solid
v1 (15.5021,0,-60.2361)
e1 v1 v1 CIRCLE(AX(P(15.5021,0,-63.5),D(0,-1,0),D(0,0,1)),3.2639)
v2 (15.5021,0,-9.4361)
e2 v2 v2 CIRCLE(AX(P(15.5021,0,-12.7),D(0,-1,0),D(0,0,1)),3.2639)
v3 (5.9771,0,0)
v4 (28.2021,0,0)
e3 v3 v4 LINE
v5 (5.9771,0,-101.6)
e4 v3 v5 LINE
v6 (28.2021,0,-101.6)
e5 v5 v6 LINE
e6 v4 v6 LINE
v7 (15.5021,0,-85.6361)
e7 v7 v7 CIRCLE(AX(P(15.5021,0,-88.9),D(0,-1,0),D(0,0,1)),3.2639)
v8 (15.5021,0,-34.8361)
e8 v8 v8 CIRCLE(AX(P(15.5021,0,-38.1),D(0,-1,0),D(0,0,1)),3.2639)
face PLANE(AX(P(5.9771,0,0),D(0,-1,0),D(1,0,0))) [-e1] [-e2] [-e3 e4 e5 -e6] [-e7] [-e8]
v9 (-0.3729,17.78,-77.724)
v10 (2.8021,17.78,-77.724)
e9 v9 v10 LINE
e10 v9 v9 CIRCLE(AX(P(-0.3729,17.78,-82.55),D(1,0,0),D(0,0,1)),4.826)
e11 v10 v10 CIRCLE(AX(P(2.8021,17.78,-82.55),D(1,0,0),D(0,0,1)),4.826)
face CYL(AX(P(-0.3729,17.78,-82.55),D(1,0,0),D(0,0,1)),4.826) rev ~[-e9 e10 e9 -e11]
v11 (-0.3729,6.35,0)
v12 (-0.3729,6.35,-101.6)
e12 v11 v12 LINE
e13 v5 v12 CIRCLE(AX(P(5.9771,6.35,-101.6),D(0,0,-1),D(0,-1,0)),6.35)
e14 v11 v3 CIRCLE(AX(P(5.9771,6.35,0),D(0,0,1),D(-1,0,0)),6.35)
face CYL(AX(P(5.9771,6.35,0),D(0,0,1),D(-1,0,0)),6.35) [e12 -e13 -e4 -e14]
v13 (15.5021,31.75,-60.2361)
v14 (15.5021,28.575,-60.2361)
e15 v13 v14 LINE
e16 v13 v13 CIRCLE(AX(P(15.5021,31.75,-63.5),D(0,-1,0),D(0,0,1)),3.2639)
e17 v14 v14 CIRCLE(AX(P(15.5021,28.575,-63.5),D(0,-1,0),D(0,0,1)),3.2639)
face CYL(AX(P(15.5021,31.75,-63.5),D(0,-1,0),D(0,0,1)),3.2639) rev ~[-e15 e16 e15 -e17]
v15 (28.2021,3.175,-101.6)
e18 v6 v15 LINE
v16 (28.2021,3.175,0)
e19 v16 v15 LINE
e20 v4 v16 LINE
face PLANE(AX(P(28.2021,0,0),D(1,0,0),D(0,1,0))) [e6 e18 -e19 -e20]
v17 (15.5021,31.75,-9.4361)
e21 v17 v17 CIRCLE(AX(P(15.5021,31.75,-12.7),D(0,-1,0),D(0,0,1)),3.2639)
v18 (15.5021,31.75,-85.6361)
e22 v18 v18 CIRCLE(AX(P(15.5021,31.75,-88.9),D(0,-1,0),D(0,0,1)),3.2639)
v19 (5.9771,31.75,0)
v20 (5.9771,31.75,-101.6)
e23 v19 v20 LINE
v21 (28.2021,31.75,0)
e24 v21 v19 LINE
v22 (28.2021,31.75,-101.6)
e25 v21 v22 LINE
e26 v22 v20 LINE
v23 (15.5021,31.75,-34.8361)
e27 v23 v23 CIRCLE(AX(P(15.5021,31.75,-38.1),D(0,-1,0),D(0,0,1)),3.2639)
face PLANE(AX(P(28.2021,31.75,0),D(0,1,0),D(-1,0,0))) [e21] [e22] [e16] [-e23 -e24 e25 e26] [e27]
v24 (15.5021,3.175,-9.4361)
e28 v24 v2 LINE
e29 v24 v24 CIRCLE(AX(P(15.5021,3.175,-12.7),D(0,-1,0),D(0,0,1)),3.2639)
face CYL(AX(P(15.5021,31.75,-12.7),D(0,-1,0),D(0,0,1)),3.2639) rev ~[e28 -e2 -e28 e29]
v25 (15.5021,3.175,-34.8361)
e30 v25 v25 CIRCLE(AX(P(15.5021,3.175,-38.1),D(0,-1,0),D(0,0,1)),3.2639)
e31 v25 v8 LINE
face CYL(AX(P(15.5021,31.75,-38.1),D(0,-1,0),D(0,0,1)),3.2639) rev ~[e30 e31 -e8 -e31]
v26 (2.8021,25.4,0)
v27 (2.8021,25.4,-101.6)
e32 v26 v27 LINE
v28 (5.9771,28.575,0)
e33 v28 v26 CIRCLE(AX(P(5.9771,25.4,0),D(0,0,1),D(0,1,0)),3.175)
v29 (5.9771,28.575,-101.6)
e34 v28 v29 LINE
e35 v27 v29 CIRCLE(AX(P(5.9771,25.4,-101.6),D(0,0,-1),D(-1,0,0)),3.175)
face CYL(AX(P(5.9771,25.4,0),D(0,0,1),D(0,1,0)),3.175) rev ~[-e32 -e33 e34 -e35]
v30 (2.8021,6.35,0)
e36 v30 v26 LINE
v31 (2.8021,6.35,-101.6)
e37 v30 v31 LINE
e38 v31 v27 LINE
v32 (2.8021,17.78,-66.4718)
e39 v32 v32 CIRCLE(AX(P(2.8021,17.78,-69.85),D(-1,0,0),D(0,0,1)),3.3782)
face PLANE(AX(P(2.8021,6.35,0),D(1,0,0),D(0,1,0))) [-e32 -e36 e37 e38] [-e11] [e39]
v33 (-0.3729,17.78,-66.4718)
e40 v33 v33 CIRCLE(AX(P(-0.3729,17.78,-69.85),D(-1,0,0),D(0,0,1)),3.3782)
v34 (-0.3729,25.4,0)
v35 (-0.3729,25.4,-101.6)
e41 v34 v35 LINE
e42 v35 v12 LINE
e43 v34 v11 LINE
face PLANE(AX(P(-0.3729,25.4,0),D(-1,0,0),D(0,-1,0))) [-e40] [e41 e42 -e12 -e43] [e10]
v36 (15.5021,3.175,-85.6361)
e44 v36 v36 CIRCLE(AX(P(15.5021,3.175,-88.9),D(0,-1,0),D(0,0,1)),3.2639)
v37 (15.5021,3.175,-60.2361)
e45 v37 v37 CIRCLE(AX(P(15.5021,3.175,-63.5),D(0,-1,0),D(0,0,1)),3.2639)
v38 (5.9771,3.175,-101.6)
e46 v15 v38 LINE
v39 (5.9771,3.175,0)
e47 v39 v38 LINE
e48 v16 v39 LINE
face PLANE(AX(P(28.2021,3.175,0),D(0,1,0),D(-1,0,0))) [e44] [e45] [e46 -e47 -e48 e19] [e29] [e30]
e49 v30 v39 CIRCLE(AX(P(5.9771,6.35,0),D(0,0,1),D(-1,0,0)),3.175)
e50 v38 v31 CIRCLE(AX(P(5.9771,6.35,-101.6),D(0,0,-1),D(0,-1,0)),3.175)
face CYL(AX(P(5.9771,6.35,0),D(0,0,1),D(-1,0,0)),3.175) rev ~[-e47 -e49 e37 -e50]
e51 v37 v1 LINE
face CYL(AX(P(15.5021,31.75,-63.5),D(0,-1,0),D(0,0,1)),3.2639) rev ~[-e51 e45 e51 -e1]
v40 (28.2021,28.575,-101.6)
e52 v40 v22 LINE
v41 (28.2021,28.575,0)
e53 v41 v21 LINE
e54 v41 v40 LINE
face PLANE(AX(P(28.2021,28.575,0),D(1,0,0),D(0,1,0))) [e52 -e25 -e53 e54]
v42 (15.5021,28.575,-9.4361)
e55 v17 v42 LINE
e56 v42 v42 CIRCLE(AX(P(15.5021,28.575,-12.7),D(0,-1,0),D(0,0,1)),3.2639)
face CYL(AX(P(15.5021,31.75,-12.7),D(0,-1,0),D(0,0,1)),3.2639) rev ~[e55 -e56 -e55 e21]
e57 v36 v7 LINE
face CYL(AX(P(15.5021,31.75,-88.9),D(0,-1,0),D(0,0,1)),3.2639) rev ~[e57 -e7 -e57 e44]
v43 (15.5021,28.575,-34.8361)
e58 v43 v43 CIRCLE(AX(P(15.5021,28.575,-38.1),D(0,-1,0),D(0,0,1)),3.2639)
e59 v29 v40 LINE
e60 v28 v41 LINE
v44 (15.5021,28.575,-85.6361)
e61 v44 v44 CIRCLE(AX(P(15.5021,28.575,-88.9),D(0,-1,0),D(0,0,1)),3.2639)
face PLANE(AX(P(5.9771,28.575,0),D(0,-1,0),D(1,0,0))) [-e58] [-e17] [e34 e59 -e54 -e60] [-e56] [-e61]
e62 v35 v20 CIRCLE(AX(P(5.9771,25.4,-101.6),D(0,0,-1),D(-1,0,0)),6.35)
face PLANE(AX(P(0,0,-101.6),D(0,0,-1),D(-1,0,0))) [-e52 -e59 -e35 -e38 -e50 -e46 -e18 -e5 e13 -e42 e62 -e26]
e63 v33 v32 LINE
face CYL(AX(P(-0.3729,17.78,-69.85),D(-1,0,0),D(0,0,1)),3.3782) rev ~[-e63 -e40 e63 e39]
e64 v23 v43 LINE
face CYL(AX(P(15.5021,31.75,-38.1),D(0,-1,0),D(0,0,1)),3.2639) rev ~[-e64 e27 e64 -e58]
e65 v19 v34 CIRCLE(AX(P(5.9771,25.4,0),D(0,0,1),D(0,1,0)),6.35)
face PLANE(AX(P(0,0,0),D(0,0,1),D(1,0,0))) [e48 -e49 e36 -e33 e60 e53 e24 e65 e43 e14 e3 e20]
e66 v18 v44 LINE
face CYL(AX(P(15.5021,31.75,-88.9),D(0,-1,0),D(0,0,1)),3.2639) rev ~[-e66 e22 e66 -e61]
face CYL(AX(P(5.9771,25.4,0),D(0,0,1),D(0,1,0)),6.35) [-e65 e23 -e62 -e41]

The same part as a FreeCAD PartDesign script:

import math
import FreeCAD as App
import Part
import Sketcher
from FreeCAD import Vector
Q = App.Units.Quantity

doc = App.newDocument("Part")
body = doc.addObject("PartDesign::Body", "Body")

# Sketch on XY plane
sketch1 = doc.addObject("Sketcher::SketchObject", "Sketch")
body.addObject(sketch1)
sketch1.AttachmentSupport = (doc.XY_Plane, [""])
sketch1.MapMode = "FlatFace"
sketch1.addGeometry([
    Part.ArcOfCircle(Part.Circle(Vector(5.9771, 6.35, 0), Vector(0, 0, 1), 6.35), math.radians(180), math.radians(270)),  # 0
    Part.LineSegment(Vector(5.9771, 0, 0), Vector(28.2021, 0, 0)),  # 1
    Part.LineSegment(Vector(28.2021, 0, 0), Vector(28.2021, 3.175, 0)),  # 2
    Part.LineSegment(Vector(28.2021, 3.175, 0), Vector(5.9771, 3.175, 0)),  # 3
    Part.ArcOfCircle(Part.Circle(Vector(5.9771, 6.35, 0), Vector(0, 0, 1), 3.175), math.radians(180), math.radians(270)),  # 4
    Part.LineSegment(Vector(2.8021, 6.35, 0), Vector(2.8021, 25.4, 0)),  # 5
    Part.ArcOfCircle(Part.Circle(Vector(5.9771, 25.4, 0), Vector(0, 0, 1), 3.175), math.radians(90), math.radians(180)),  # 6
    Part.LineSegment(Vector(5.9771, 28.575, 0), Vector(28.2021, 28.575, 0)),  # 7
    Part.LineSegment(Vector(28.2021, 28.575, 0), Vector(28.2021, 31.75, 0)),  # 8
    Part.LineSegment(Vector(28.2021, 31.75, 0), Vector(5.9771, 31.75, 0)),  # 9
    Part.ArcOfCircle(Part.Circle(Vector(5.9771, 25.4, 0), Vector(0, 0, 1), 6.35), math.radians(90), math.radians(180)),  # 10
    Part.LineSegment(Vector(-0.3729, 25.4, 0), Vector(-0.3729, 6.35, 0)),  # 11
], False)
sketch1.addConstraint([
    Sketcher.Constraint("Tangent", 0, 2, 1, 1),
    Sketcher.Constraint("Coincident", 1, 2, 2, 1),
    Sketcher.Constraint("Coincident", 2, 2, 3, 1),
    Sketcher.Constraint("Tangent", 3, 2, 4, 2),
    Sketcher.Constraint("Tangent", 4, 1, 5, 1),
    Sketcher.Constraint("Tangent", 5, 2, 6, 2),
    Sketcher.Constraint("Tangent", 6, 1, 7, 1),
    Sketcher.Constraint("Coincident", 7, 2, 8, 1),
    Sketcher.Constraint("Coincident", 8, 2, 9, 1),
    Sketcher.Constraint("Tangent", 9, 2, 10, 1),
    Sketcher.Constraint("Tangent", 10, 2, 11, 1),
    Sketcher.Constraint("Tangent", 11, 2, 0, 1),
    Sketcher.Constraint("Horizontal", 1),
    Sketcher.Constraint("Vertical", 2),
    Sketcher.Constraint("Horizontal", 3),
    Sketcher.Constraint("Vertical", 5),
    Sketcher.Constraint("Horizontal", 7),
    Sketcher.Constraint("Vertical", 8),
    Sketcher.Constraint("Horizontal", 9),
    Sketcher.Constraint("Vertical", 11),
    Sketcher.Constraint("Coincident", 4, 3, 0, 3),
    Sketcher.Constraint("Coincident", 10, 3, 6, 3),
    Sketcher.Constraint("Equal", 4, 6),
    Sketcher.Constraint("PointOnObject", 0, 2, -1),
    Sketcher.Constraint("Vertical", 2, 2, 7, 2),
    Sketcher.Constraint("Radius", 0, Q("0.25 in")),
    Sketcher.Constraint("DistanceY", -1, 1, 6, 3, Q("1 in")),
    Sketcher.Constraint("Radius", 4, Q("0.125 in")),
    Sketcher.Constraint("DistanceX", 5, 2, 7, 2, Q("1 in")),
    Sketcher.Constraint("DistanceX", -1, 1, 0, 3, 5.977),
])
pad1 = doc.addObject("PartDesign::Pad", "Pad")
body.addObject(pad1)
pad1.Profile = sketch1
pad1.Length = Q("35 in")
pad1.Reversed = True

# Sketch on YZ plane
sketch2 = doc.addObject("Sketcher::SketchObject", "Sketch001")
body.addObject(sketch2)
sketch2.AttachmentSupport = (doc.YZ_Plane, [""])
sketch2.MapMode = "FlatFace"
sketch2.AttachmentOffset = App.Placement(Vector(0, 0, -0.3729), App.Rotation())
sketch2.addGeometry([
    Part.Circle(Vector(17.78, -781.05, 0), Vector(0, 0, 1), 4.826),  # 0
    Part.Circle(Vector(17.78, -730.25, 0), Vector(0, 0, 1), 4.826),  # 1
    Part.Circle(Vector(17.78, -552.45, 0), Vector(0, 0, 1), 4.826),  # 2
    Part.Circle(Vector(17.78, -501.65, 0), Vector(0, 0, 1), 4.826),  # 3
    Part.Circle(Vector(13.97, -444.5, 0), Vector(0, 0, 1), 4.826),  # 4
    Part.Circle(Vector(17.78, -387.35, 0), Vector(0, 0, 1), 4.826),  # 5
    Part.Circle(Vector(17.78, -336.55, 0), Vector(0, 0, 1), 4.826),  # 6
    Part.Circle(Vector(17.78, -133.35, 0), Vector(0, 0, 1), 4.826),  # 7
    Part.Circle(Vector(17.78, -82.55, 0), Vector(0, 0, 1), 4.826),  # 8
], False)
sketch2.addConstraint([
    Sketcher.Constraint("Equal", 0, 1),
    Sketcher.Constraint("Equal", 1, 2),
    Sketcher.Constraint("Equal", 2, 3),
    Sketcher.Constraint("Equal", 3, 4),
    Sketcher.Constraint("Equal", 4, 5),
    Sketcher.Constraint("Equal", 5, 6),
    Sketcher.Constraint("Equal", 6, 7),
    Sketcher.Constraint("Equal", 7, 8),
    Sketcher.Constraint("Vertical", 0, 3, 1, 3),
    Sketcher.Constraint("Vertical", 1, 3, 2, 3),
    Sketcher.Constraint("Vertical", 2, 3, 3, 3),
    Sketcher.Constraint("Vertical", 3, 3, 5, 3),
    Sketcher.Constraint("Vertical", 5, 3, 6, 3),
    Sketcher.Constraint("Vertical", 6, 3, 7, 3),
    Sketcher.Constraint("Vertical", 7, 3, 8, 3),
    Sketcher.Constraint("Diameter", 0, Q("0.38 in")),
    Sketcher.Constraint("DistanceY", 0, 3, 1, 3, Q("2 in")),
    Sketcher.Constraint("DistanceY", 1, 3, 2, 3, Q("7 in")),
    Sketcher.Constraint("DistanceY", 2, 3, 3, 3, Q("2 in")),
    Sketcher.Constraint("DistanceY", 5, 3, 6, 3, Q("2 in")),
    Sketcher.Constraint("DistanceY", 6, 3, 7, 3, Q("8 in")),
    Sketcher.Constraint("DistanceY", 7, 3, 8, 3, Q("2 in")),
    Sketcher.Constraint("DistanceX", -1, 1, 0, 3, Q("0.7 in")),
    Sketcher.Constraint("DistanceY", 4, 3, -1, 1, Q("17.5 in")),
    Sketcher.Constraint("DistanceY", 3, 3, 5, 3, Q("4.5 in")),
    Sketcher.Constraint("DistanceY", 0, 3, -1, 1, Q("30.75 in")),
    Sketcher.Constraint("DistanceX", -1, 1, 4, 3, Q("0.55 in")),
])
doc.recompute()
hole = doc.addObject("PartDesign::Hole", "Hole")
body.addObject(hole)
hole.Profile = sketch2
hole.ThreadType = "None"
hole.Diameter = Q("0.38 in")
hole.DepthType = "ThroughAll"
hole.Reversed = True

# Sketch on YZ plane
sketch3 = doc.addObject("Sketcher::SketchObject", "Sketch002")
body.addObject(sketch3)
sketch3.AttachmentSupport = (doc.YZ_Plane, [""])
sketch3.MapMode = "FlatFace"
sketch3.AttachmentOffset = App.Placement(Vector(0, 0, -0.3729), App.Rotation())
sketch3.addGeometry(Part.Circle(Vector(15.875, -228.6, 0), Vector(0, 0, 1), 1.5875), False)
sketch3.addConstraint([
    Sketcher.Constraint("Diameter", 0, Q("0.125 in")),
    Sketcher.Constraint("DistanceY", 0, 3, -1, 1, Q("9 in")),
    Sketcher.Constraint("DistanceX", -1, 1, 0, 3, Q("0.625 in")),
])
doc.recompute()
hole2 = doc.addObject("PartDesign::Hole", "Hole001")
body.addObject(hole2)
hole2.Profile = sketch3
hole2.ThreadType = "None"
hole2.Diameter = Q("0.125 in")
hole2.DepthType = "ThroughAll"
hole2.Reversed = True

# Sketch on XZ plane
sketch4 = doc.addObject("Sketcher::SketchObject", "Sketch003")
body.addObject(sketch4)
sketch4.AttachmentSupport = (doc.XZ_Plane, [""])
sketch4.MapMode = "FlatFace"
sketch4.AttachmentOffset = App.Placement(Vector(0, 0, -1.25 * 25.4), App.Rotation())
sketch4.addGeometry(Part.Circle(Vector(15.5021, -876.3, 0), Vector(0, 0, 1), 3.2639), False)
sketch4.addConstraint([
    Sketcher.Constraint("Diameter", 0, Q("0.257 in")),
    Sketcher.Constraint("DistanceY", 0, 3, -1, 1, Q("34.5 in")),
    Sketcher.Constraint("DistanceX", -1, 1, 0, 3, 15.502),
])
doc.recompute()
hole3 = doc.addObject("PartDesign::Hole", "Hole002")
body.addObject(hole3)
hole3.Profile = sketch4
hole3.ThreadType = "None"
hole3.Diameter = Q("0.257 in")
hole3.DepthType = "ThroughAll"
hole3.Reversed = True
doc.recompute()

linearpattern = doc.addObject("PartDesign::LinearPattern", "LinearPattern")
body.addObject(linearpattern)
linearpattern.Originals = [hole3]
linearpattern.Direction = (doc.Z_Axis, [""])
linearpattern.Mode = "offset"
linearpattern.Offset = Q("1 in")
linearpattern.Occurrences = 35
body.Tip = linearpattern

# Sketch on XY plane
sketch5 = doc.addObject("Sketcher::SketchObject", "Sketch004")
body.addObject(sketch5)
sketch5.AttachmentSupport = (doc.XY_Plane, [""])
sketch5.MapMode = "FlatFace"
sketch5.AttachmentOffset = App.Placement(Vector(0, 0, -35 * 25.4), App.Rotation())
sketch5.addGeometry([
    Part.LineSegment(Vector(28.2021, 3.175, 0), Vector(28.2021, 0, 0)),  # 0
    Part.LineSegment(Vector(28.2021, 0, 0), Vector(5.9771, 0, 0)),  # 1
    Part.ArcOfCircle(Part.Circle(Vector(5.9771, 6.35, 0), Vector(0, 0, 1), 6.35), math.radians(180), math.radians(270)),  # 2
    Part.LineSegment(Vector(-0.3729, 6.35, 0), Vector(-0.3729, 25.4, 0)),  # 3
    Part.ArcOfCircle(Part.Circle(Vector(5.9771, 25.4, 0), Vector(0, 0, 1), 6.35), math.radians(90), math.radians(180)),  # 4
    Part.LineSegment(Vector(5.9771, 31.75, 0), Vector(28.2021, 31.75, 0)),  # 5
    Part.LineSegment(Vector(28.2021, 31.75, 0), Vector(28.2021, 28.575, 0)),  # 6
    Part.LineSegment(Vector(28.2021, 28.575, 0), Vector(5.9771, 28.575, 0)),  # 7
    Part.ArcOfCircle(Part.Circle(Vector(5.9771, 25.4, 0), Vector(0, 0, 1), 3.175), math.radians(90), math.radians(180)),  # 8
    Part.LineSegment(Vector(2.8021, 25.4, 0), Vector(2.8021, 6.35, 0)),  # 9
    Part.ArcOfCircle(Part.Circle(Vector(5.9771, 6.35, 0), Vector(0, 0, 1), 3.175), math.radians(180), math.radians(270)),  # 10
    Part.LineSegment(Vector(5.9771, 3.175, 0), Vector(28.2021, 3.175, 0)),  # 11
], False)
sketch5.addConstraint([
    Sketcher.Constraint("Coincident", 0, 2, 1, 1),
    Sketcher.Constraint("Tangent", 1, 2, 2, 2),
    Sketcher.Constraint("Tangent", 2, 1, 3, 1),
    Sketcher.Constraint("Tangent", 3, 2, 4, 2),
    Sketcher.Constraint("Tangent", 4, 1, 5, 1),
    Sketcher.Constraint("Coincident", 5, 2, 6, 1),
    Sketcher.Constraint("Coincident", 6, 2, 7, 1),
    Sketcher.Constraint("Tangent", 7, 2, 8, 1),
    Sketcher.Constraint("Tangent", 8, 2, 9, 1),
    Sketcher.Constraint("Tangent", 9, 2, 10, 1),
    Sketcher.Constraint("Tangent", 10, 2, 11, 1),
    Sketcher.Constraint("Coincident", 11, 2, 0, 1),
    Sketcher.Constraint("Vertical", 0),
    Sketcher.Constraint("Horizontal", 1),
    Sketcher.Constraint("Vertical", 3),
    Sketcher.Constraint("Horizontal", 5),
    Sketcher.Constraint("Vertical", 6),
    Sketcher.Constraint("Horizontal", 7),
    Sketcher.Constraint("Vertical", 9),
    Sketcher.Constraint("Horizontal", 11),
    Sketcher.Constraint("Coincident", 8, 3, 4, 3),
    Sketcher.Constraint("Coincident", 10, 3, 2, 3),
    Sketcher.Constraint("Equal", 2, 4),
    Sketcher.Constraint("PointOnObject", 0, 2, -1),
    Sketcher.Constraint("Vertical", 0, 2, 5, 2),
    Sketcher.Constraint("Radius", 2, Q("0.25 in")),
    Sketcher.Constraint("DistanceY", -1, 1, 4, 3, Q("1 in")),
    Sketcher.Constraint("Radius", 8, Q("0.125 in")),
    Sketcher.Constraint("DistanceX", 1, 2, 1, 1, Q("0.875 in")),
    Sketcher.Constraint("DistanceX", -1, 1, 2, 3, 5.977),
])
pocket1 = doc.addObject("PartDesign::Pocket", "Pocket")
body.addObject(pocket1)
pocket1.Profile = sketch5
pocket1.Length = Q("31 in")
pocket1.Reversed = True

# Sketch on YZ plane
sketch6 = doc.addObject("Sketcher::SketchObject", "Sketch005")
body.addObject(sketch6)
sketch6.AttachmentSupport = (doc.YZ_Plane, [""])
sketch6.MapMode = "FlatFace"
sketch6.AttachmentOffset = App.Placement(Vector(0, 0, -0.3729), App.Rotation())
sketch6.addGeometry(Part.Circle(Vector(17.78, -69.85, 0), Vector(0, 0, 1), 3.3782), False)
sketch6.addConstraint([
    Sketcher.Constraint("Diameter", 0, Q("0.266 in")),
    Sketcher.Constraint("DistanceX", -1, 1, 0, 3, Q("0.7 in")),
    Sketcher.Constraint("DistanceY", 0, 3, -1, 1, Q("2.75 in")),
])
pocket2 = doc.addObject("PartDesign::Pocket", "Pocket001")
body.addObject(pocket2)
pocket2.Profile = sketch6
pocket2.Length = Q("1 in")
pocket2.Reversed = True

doc.recompute()
